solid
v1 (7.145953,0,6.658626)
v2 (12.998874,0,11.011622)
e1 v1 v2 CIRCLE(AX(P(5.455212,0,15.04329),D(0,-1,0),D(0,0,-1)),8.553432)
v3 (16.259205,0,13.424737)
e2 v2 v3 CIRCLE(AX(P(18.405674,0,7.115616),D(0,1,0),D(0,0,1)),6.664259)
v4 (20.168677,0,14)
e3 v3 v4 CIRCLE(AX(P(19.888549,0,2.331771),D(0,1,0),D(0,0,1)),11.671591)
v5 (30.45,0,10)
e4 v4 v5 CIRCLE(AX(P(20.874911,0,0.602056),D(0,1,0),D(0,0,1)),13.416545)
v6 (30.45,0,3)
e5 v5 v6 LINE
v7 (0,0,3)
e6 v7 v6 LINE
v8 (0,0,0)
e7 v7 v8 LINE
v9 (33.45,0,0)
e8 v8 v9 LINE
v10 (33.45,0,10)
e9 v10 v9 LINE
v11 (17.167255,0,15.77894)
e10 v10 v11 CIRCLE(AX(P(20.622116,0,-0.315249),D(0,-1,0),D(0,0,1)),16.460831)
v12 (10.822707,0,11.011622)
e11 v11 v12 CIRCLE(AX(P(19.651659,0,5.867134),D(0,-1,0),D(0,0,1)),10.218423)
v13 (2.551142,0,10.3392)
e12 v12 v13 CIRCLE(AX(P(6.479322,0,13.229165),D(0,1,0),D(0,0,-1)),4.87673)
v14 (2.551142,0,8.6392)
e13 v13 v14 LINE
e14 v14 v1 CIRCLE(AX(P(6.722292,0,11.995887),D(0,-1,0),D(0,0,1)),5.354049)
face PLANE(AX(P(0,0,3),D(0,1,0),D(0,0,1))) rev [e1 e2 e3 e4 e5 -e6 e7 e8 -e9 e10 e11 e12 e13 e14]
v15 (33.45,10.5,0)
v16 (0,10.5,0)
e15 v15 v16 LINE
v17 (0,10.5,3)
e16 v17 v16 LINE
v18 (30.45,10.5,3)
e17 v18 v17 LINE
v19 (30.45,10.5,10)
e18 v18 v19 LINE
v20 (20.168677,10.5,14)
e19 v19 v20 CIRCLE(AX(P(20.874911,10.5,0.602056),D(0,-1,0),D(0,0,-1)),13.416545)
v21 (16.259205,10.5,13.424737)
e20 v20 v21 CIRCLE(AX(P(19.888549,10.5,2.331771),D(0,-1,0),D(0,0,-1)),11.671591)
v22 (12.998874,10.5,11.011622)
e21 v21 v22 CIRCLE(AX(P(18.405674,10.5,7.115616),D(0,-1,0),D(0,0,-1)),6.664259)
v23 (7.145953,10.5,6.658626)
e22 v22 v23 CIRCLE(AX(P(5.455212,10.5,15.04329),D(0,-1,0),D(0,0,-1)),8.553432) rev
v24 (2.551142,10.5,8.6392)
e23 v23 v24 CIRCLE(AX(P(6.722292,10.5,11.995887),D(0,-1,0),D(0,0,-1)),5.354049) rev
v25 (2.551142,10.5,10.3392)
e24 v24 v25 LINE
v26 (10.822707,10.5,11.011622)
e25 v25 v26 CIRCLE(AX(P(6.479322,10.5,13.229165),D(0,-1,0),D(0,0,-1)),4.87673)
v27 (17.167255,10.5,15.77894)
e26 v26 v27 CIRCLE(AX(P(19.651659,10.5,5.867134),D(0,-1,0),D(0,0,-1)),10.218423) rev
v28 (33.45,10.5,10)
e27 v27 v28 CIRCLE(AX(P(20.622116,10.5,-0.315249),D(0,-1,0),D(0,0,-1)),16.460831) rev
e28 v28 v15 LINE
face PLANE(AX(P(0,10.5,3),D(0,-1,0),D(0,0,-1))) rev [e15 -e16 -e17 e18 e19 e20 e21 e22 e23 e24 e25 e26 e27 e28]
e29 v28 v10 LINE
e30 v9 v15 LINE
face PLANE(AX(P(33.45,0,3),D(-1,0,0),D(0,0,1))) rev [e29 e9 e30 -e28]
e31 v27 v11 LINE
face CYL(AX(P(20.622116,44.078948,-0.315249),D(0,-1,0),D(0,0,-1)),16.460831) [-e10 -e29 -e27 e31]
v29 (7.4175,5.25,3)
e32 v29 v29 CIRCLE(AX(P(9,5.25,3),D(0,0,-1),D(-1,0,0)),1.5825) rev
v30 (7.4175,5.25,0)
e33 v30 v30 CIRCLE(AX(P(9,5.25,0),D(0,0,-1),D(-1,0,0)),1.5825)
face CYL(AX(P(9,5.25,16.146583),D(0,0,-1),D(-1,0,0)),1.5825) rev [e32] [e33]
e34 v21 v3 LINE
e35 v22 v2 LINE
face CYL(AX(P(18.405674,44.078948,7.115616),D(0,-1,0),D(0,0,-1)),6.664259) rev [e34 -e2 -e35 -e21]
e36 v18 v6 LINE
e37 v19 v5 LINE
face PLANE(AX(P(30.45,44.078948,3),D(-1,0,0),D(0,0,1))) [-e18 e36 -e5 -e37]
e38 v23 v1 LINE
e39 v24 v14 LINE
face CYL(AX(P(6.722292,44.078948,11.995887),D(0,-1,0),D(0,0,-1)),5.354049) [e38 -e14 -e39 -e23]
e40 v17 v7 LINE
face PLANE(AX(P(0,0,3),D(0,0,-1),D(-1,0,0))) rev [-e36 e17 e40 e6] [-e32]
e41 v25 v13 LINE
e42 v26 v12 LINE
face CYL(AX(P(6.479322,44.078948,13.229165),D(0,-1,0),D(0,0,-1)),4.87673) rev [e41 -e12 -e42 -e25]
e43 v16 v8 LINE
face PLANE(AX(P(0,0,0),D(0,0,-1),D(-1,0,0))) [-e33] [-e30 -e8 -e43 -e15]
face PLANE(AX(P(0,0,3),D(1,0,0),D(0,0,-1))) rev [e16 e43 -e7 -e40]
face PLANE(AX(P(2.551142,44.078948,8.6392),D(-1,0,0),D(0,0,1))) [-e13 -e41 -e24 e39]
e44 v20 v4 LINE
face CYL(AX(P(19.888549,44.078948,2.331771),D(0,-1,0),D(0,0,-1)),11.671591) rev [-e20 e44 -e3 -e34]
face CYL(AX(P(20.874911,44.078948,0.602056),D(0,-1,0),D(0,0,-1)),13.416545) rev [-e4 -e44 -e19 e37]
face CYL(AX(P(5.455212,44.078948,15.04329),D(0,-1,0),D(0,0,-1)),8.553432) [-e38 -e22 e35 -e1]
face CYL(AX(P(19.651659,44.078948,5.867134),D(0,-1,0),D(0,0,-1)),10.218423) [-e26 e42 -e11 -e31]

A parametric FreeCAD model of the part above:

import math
import FreeCAD as App
import Part
import Sketcher

doc = App.newDocument("Part")
body = doc.addObject("PartDesign::Body", "Body")

# Sketch on XY plane
sketch1 = doc.addObject("Sketcher::SketchObject", "Sketch")
body.addObject(sketch1)
sketch1.AttachmentSupport = (doc.XY_Plane, [""])
sketch1.MapMode = "FlatFace"
sketch1.addGeometry(Part.LineSegment(App.Vector(0, 10.5, 0), App.Vector(0, 0, 0)), False)
sketch1.addGeometry(Part.LineSegment(App.Vector(0, 0, 0), App.Vector(33.45, 0, 0)), False)
sketch1.addGeometry(Part.LineSegment(App.Vector(33.45, 0, 0), App.Vector(33.45, 10.5, 0)), False)
sketch1.addGeometry(Part.LineSegment(App.Vector(33.45, 10.5, 0), App.Vector(0, 10.5, 0)), False)
sketch1.addConstraint(Sketcher.Constraint("Coincident", 0, 2, 1, 1))
sketch1.addConstraint(Sketcher.Constraint("Coincident", 1, 2, 2, 1))
sketch1.addConstraint(Sketcher.Constraint("Coincident", 2, 2, 3, 1))
sketch1.addConstraint(Sketcher.Constraint("Coincident", 3, 2, 0, 1))
sketch1.addConstraint(Sketcher.Constraint("Vertical", 0))
sketch1.addConstraint(Sketcher.Constraint("Horizontal", 1))
sketch1.addConstraint(Sketcher.Constraint("Vertical", 2))
sketch1.addConstraint(Sketcher.Constraint("Horizontal", 3))
sketch1.addConstraint(Sketcher.Constraint("Coincident", 0, 2, -1, 1))
sketch1.addConstraint(Sketcher.Constraint("DistanceY", 0, 2, 0, 1, 10.5))
sketch1.addConstraint(Sketcher.Constraint("DistanceX", 1, 1, 1, 2, 33.45))
pad1 = doc.addObject("PartDesign::Pad", "Pad")
body.addObject(pad1)
pad1.Profile = sketch1
pad1.Length = 3

# Sketch on XZ plane
sketch2 = doc.addObject("Sketcher::SketchObject", "Sketch001")
body.addObject(sketch2)
sketch2.AttachmentSupport = (doc.XZ_Plane, [""])
sketch2.MapMode = "FlatFace"
sketch2.addGeometry(Part.LineSegment(App.Vector(33.45, 3, 0), App.Vector(33.45, 10, 0)), False)
sketch2.addGeometry(Part.ArcOfCircle(Part.Circle(App.Vector(20.622116, -0.315249, 0), App.Vector(0, 0, 1), 16.460831), math.radians(38.803703), math.radians(102.115539)), False)
sketch2.addGeometry(Part.ArcOfCircle(Part.Circle(App.Vector(19.651659, 5.867134, 0), App.Vector(0, 0, 1), 10.218423), math.radians(104.071343), math.radians(149.771337)), False)
sketch2.addGeometry(Part.ArcOfCircle(Part.Circle(App.Vector(6.479322, 13.229165, 0), App.Vector(0, 0, 1), 4.87673), math.radians(-143.658048), math.radians(-27.04688)), False)
sketch2.addGeometry(Part.LineSegment(App.Vector(2.551142, 10.3392, 0), App.Vector(2.551142, 8.6392, 0)), False)
sketch2.addGeometry(Part.ArcOfCircle(Part.Circle(App.Vector(6.722292, 11.995887, 0), App.Vector(0, 0, 1), 5.354049), math.radians(-141.17501), math.radians(-85.461498)), False)
sketch2.addGeometry(Part.ArcOfCircle(Part.Circle(App.Vector(5.455212, 15.04329, 0), App.Vector(0, 0, 1), 8.553432), math.radians(-78.599372), math.radians(-28.122029)), False)
sketch2.addGeometry(Part.ArcOfCircle(Part.Circle(App.Vector(18.405674, 7.115616, 0), App.Vector(0, 0, 1), 6.664259), math.radians(108.78917), math.radians(144.224413)), False)
sketch2.addGeometry(Part.ArcOfCircle(Part.Circle(App.Vector(19.888549, 2.331771, 0), App.Vector(0, 0, 1), 11.671591), math.radians(88.62472), math.radians(108.116817)), False)
sketch2.addGeometry(Part.ArcOfCircle(Part.Circle(App.Vector(20.874911, 0.602056, 0), App.Vector(0, 0, 1), 13.416545), math.radians(44.465066), math.radians(93.01739)), False)
sketch2.addGeometry(Part.LineSegment(App.Vector(30.45, 10, 0), App.Vector(30.45, 3, 0)), False)
sketch2.addGeometry(Part.LineSegment(App.Vector(30.45, 3, 0), App.Vector(33.45, 3, 0)), False)
sketch2.addConstraint(Sketcher.Constraint("Coincident", 0, 2, 1, 1))
sketch2.addConstraint(Sketcher.Constraint("Coincident", 1, 2, 2, 1))
sketch2.addConstraint(Sketcher.Constraint("Coincident", 2, 2, 3, 2))
sketch2.addConstraint(Sketcher.Constraint("Coincident", 3, 1, 4, 1))
sketch2.addConstraint(Sketcher.Constraint("Coincident", 4, 2, 5, 1))
sketch2.addConstraint(Sketcher.Constraint("Coincident", 5, 2, 6, 1))
sketch2.addConstraint(Sketcher.Constraint("Coincident", 6, 2, 7, 2))
sketch2.addConstraint(Sketcher.Constraint("Coincident", 7, 1, 8, 2))
sketch2.addConstraint(Sketcher.Constraint("Coincident", 8, 1, 9, 2))
sketch2.addConstraint(Sketcher.Constraint("Coincident", 9, 1, 10, 1))
sketch2.addConstraint(Sketcher.Constraint("Coincident", 10, 2, 11, 1))
sketch2.addConstraint(Sketcher.Constraint("Coincident", 11, 2, 0, 1))
sketch2.addConstraint(Sketcher.Constraint("Vertical", 0))
sketch2.addConstraint(Sketcher.Constraint("Vertical", 4))
sketch2.addConstraint(Sketcher.Constraint("Vertical", 10))
sketch2.addConstraint(Sketcher.Constraint("Horizontal", 11))
sketch2.addConstraint(Sketcher.Constraint("Horizontal", 2, 2, 6, 2))
sketch2.addConstraint(Sketcher.Constraint("Horizontal", 0, 2, 9, 1))
sketch2.addConstraint(Sketcher.Constraint("DistanceX", 11, 1, 11, 2, 3.0))
sketch2.addConstraint(Sketcher.Constraint("DistanceY", 0, 1, 0, 2, 7.0))
sketch2.addConstraint(Sketcher.Constraint("DistanceY", 4, 2, 4, 1, 1.7))
sketch2.addConstraint(Sketcher.Constraint("DistanceY", -1, 1, 0, 2, 10.0))
sketch2.addConstraint(Sketcher.Constraint("DistanceY", -1, 1, 8, 1, 14.0))
sketch2.addConstraint(Sketcher.Constraint("DistanceX", -1, 1, 0, 2, 33.45))
sketch2.addConstraint(Sketcher.Constraint("Radius", 1, 16.460831))
sketch2.addConstraint(Sketcher.Constraint("Radius", 3, 4.87673))
sketch2.addConstraint(Sketcher.Constraint("Radius", 5, 5.354049))
sketch2.addConstraint(Sketcher.Constraint("Radius", 6, 8.553432))
sketch2.addConstraint(Sketcher.Constraint("Radius", 7, 6.664259))
sketch2.addConstraint(Sketcher.Constraint("Radius", 8, 11.671591))
sketch2.addConstraint(Sketcher.Constraint("Radius", 2, 10.218423))
sketch2.addConstraint(Sketcher.Constraint("Radius", 9, 13.416545))
sketch2.addConstraint(Sketcher.Constraint("DistanceY", -1, 1, 3, 1, 10.3392))
sketch2.addConstraint(Sketcher.Constraint("DistanceX", 6, 2, 7, 3, 5.4068))
sketch2.addConstraint(Sketcher.Constraint("DistanceX", 2, 2, 7, 1, 5.436498))
sketch2.addConstraint(Sketcher.Constraint("DistanceY", 1, 3, -1, 1, 0.315249))
sketch2.addConstraint(Sketcher.Constraint("DistanceX", -1, 1, 2, 3, 19.651659))
sketch2.addConstraint(Sketcher.Constraint("DistanceX", -1, 1, 3, 3, 6.479322))
sketch2.addConstraint(Sketcher.Constraint("DistanceY", -1, 1, 6, 3, 15.04329))
sketch2.addConstraint(Sketcher.Constraint("DistanceX", -1, 1, 8, 3, 19.888549))
sketch2.addConstraint(Sketcher.Constraint("DistanceY", -1, 1, 8, 3, 2.331771))
sketch2.addConstraint(Sketcher.Constraint("DistanceY", -1, 1, 1, 2, 15.77894))
sketch2.addConstraint(Sketcher.Constraint("DistanceY", -1, 1, 2, 2, 11.011622))
sketch2.addConstraint(Sketcher.Constraint("DistanceX", 3, 3, 5, 3, 0.242971))
pad2 = doc.addObject("PartDesign::Pad", "Pad001")
body.addObject(pad2)
pad2.Profile = sketch2
pad2.Length = 10.5
pad2.Reversed = True

# Sketch on XY plane
sketch3 = doc.addObject("Sketcher::SketchObject", "Sketch002")
body.addObject(sketch3)
sketch3.AttachmentSupport = (doc.XY_Plane, [""])
sketch3.MapMode = "FlatFace"
sketch3.addGeometry(Part.Circle(App.Vector(9, 5.25, 0), App.Vector(0, 0, 1), 1.5825), False)
sketch3.addConstraint(Sketcher.Constraint("Diameter", 0, 3.165))
sketch3.addConstraint(Sketcher.Constraint("DistanceX", -1, 1, 0, 3, 9.0))
sketch3.addConstraint(Sketcher.Constraint("DistanceY", -1, 1, 0, 3, 5.25))
pocket1 = doc.addObject("PartDesign::Pocket", "Pocket")
body.addObject(pocket1)
pocket1.Profile = sketch3
pocket1.Type = "UpToFirst"
pocket1.Reversed = True

doc.recompute()
